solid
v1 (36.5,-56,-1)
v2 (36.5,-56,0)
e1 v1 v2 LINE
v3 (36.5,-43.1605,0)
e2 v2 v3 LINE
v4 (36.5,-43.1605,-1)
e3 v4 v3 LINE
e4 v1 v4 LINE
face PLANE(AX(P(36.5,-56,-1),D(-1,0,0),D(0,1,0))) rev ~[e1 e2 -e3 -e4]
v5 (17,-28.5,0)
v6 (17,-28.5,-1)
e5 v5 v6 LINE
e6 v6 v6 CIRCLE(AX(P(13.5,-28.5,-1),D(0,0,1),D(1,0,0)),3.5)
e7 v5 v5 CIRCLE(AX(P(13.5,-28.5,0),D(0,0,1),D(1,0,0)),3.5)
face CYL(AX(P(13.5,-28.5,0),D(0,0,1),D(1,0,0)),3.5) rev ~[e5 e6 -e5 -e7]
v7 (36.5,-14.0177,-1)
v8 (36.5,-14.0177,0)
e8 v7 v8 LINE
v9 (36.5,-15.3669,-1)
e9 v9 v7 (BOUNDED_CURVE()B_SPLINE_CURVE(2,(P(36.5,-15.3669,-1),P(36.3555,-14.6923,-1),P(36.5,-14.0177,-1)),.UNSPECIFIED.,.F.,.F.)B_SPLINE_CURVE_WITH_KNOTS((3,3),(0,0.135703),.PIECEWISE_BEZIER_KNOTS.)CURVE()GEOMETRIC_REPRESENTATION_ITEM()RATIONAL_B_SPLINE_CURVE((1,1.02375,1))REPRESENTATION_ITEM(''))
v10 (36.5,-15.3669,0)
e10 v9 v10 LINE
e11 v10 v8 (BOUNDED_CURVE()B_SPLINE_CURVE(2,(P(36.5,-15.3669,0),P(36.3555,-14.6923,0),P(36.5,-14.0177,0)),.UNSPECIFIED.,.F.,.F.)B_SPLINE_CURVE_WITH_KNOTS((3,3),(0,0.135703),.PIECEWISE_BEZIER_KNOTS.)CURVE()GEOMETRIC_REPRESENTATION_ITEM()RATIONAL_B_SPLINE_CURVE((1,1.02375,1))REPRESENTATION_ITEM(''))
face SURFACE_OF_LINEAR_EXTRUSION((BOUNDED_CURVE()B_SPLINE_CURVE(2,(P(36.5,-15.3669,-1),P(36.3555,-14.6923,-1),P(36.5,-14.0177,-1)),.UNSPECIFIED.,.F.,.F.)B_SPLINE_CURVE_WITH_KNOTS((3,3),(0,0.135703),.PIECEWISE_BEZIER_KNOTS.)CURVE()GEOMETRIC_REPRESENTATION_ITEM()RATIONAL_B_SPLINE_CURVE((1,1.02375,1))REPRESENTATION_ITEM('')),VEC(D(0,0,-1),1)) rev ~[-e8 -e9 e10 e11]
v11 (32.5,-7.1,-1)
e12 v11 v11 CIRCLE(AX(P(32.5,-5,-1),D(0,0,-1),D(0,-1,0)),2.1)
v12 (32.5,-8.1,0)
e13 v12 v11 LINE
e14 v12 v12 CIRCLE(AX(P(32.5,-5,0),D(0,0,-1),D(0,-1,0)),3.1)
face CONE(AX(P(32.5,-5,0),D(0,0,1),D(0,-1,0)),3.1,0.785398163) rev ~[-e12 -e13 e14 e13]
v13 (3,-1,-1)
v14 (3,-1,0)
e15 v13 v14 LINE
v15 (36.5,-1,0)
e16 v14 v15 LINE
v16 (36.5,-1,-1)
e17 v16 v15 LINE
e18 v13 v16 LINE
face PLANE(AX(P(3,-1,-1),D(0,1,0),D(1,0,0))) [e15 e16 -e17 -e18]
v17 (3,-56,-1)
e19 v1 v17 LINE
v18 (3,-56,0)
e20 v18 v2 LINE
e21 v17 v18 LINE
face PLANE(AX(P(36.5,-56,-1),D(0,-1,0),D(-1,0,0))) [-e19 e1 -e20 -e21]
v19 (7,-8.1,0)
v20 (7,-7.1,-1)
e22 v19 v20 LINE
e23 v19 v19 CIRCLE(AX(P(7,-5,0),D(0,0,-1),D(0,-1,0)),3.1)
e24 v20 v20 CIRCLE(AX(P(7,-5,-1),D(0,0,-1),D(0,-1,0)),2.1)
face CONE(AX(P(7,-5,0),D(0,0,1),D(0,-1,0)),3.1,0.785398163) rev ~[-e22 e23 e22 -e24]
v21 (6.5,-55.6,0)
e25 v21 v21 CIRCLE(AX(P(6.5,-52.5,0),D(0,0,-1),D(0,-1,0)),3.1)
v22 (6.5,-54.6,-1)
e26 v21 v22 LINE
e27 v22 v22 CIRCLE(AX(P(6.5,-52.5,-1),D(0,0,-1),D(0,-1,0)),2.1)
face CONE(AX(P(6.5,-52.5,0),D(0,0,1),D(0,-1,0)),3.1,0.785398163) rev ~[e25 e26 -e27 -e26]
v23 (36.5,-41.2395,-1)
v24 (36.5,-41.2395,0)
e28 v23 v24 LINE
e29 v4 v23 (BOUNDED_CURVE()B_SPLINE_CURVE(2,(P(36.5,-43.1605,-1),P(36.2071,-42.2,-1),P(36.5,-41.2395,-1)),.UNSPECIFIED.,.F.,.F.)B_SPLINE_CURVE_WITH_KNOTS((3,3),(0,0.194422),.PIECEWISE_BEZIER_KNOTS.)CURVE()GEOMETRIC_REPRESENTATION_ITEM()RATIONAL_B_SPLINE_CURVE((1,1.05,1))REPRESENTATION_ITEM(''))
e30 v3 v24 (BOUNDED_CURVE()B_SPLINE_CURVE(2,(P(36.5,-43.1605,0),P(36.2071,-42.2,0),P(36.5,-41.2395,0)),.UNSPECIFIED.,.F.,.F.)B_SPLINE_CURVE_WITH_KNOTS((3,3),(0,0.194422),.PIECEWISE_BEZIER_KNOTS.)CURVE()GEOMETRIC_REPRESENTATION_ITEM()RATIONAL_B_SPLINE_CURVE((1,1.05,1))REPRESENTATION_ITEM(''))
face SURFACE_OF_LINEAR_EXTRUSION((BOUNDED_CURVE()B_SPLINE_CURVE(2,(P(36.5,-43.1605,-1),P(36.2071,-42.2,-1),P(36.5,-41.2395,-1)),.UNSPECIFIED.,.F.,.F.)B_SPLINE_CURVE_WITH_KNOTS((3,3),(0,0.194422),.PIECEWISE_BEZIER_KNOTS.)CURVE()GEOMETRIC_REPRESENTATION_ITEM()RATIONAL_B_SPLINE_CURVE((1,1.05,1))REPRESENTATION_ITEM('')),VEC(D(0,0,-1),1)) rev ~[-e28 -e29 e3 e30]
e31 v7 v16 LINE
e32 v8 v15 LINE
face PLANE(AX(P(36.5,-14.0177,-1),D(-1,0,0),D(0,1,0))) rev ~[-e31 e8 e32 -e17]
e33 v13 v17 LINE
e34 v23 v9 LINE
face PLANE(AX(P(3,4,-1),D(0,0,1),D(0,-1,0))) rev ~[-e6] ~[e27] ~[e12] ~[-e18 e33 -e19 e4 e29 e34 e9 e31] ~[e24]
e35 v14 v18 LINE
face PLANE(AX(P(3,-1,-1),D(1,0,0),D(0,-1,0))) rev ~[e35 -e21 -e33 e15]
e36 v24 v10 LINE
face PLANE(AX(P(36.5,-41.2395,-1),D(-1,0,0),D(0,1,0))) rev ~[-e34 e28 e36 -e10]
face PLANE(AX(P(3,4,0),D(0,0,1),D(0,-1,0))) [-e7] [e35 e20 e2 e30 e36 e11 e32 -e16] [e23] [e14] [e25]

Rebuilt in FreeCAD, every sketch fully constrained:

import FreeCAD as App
import Part
import Sketcher

V = App.Vector

doc = App.newDocument("Part")
body = doc.addObject("PartDesign::Body", "Body")

# Sketch on XY plane
sketch1 = body.newObject("Sketcher::SketchObject", "Sketch")
sketch1.AttachmentSupport = (doc.getObject("XY_Plane"), [""])
sketch1.MapMode = "FlatFace"
sketch1.AttachmentOffset = App.Placement(V(0, 0, -1), App.Rotation())
sketch1.addGeometry([
    Part.BSplineCurve([V(36.5, -15.3669, 0), V(36.3555, -14.6923, 0), V(36.5, -14.0177, 0)], [3, 3], [0, 0.135703], False, 2, [1, 1.02375, 1], False),  # 0
    Part.LineSegment(V(36.5, -14.0177, 0), V(36.5, -1, 0)),  # 1
    Part.LineSegment(V(36.5, -1, 0), V(3, -1, 0)),  # 2
    Part.LineSegment(V(3, -1, 0), V(3, -56, 0)),  # 3
    Part.LineSegment(V(3, -56, 0), V(36.5, -56, 0)),  # 4
    Part.LineSegment(V(36.5, -56, 0), V(36.5, -43.1605, 0)),  # 5
    Part.BSplineCurve([V(36.5, -43.1605, 0), V(36.2071, -42.2, 0), V(36.5, -41.2395, 0)], [3, 3], [0, 0.194422], False, 2, [1, 1.05, 1], False),  # 6
    Part.LineSegment(V(36.5, -41.2395, 0), V(36.5, -15.3669, 0)),  # 7
], False)
sketch1.addConstraint([
    Sketcher.Constraint("Block", 0),
    Sketcher.Constraint("Block", 6),
    Sketcher.Constraint("Coincident", 0, 2, 1, 1),
    Sketcher.Constraint("Coincident", 1, 2, 2, 1),
    Sketcher.Constraint("Coincident", 2, 2, 3, 1),
    Sketcher.Constraint("Coincident", 3, 2, 4, 1),
    Sketcher.Constraint("Coincident", 4, 2, 5, 1),
    Sketcher.Constraint("Coincident", 5, 2, 6, 1),
    Sketcher.Constraint("Coincident", 6, 2, 7, 1),
    Sketcher.Constraint("Coincident", 7, 2, 0, 1),
    Sketcher.Constraint("Vertical", 1),
    Sketcher.Constraint("Horizontal", 2),
    Sketcher.Constraint("Vertical", 3),
    Sketcher.Constraint("Horizontal", 4),
    Sketcher.Constraint("Vertical", 5),
    Sketcher.Constraint("DistanceY", 3, 2, 3, 1, 55.0),
    Sketcher.Constraint("DistanceX", 2, 2, 2, 1, 33.5),
    Sketcher.Constraint("DistanceY", 1, 2, -1, 1, 1.0),
])
pad1 = body.newObject("PartDesign::Pad", "Pad")
pad1.Profile = sketch1
pad1.Length = 1

# Sketch on XY plane
sketch2 = body.newObject("Sketcher::SketchObject", "Sketch001")
sketch2.AttachmentSupport = (doc.getObject("XY_Plane"), [""])
sketch2.MapMode = "FlatFace"
sketch2.addGeometry(Part.Circle(V(13.5, -28.5, 0), V(0, 0, 1), 3.5), False)
sketch2.addConstraint([
    Sketcher.Constraint("Diameter", 0, 7.0),
    Sketcher.Constraint("DistanceX", -1, 1, 0, 3, 13.5),
    Sketcher.Constraint("DistanceY", 0, 3, -1, 1, 28.5),
])
pocket1 = body.newObject("PartDesign::Pocket", "Pocket")
pocket1.Profile = sketch2
pocket1.Type = "UpToFirst"

# Sketch on XY plane
sketch3 = body.newObject("Sketcher::SketchObject", "Sketch002")
sketch3.AttachmentSupport = (doc.getObject("XY_Plane"), [""])
sketch3.MapMode = "FlatFace"
sketch3.addGeometry([
    Part.Circle(V(6.5, -52.5, 0), V(0, 0, 1), 1.8),
    Part.Circle(V(7, -5, 0), V(0, 0, 1), 1.8),
    Part.Circle(V(32.5, -5, 0), V(0, 0, 1), 1.8),
], False)
sketch3.addConstraint([
    Sketcher.Constraint("Equal", 0, 1),
    Sketcher.Constraint("Equal", 1, 2),
    Sketcher.Constraint("Horizontal", 1, 3, 2, 3),
    Sketcher.Constraint("Diameter", 0, 3.6),
    Sketcher.Constraint("DistanceX", -1, 1, 1, 3, 7.0),
    Sketcher.Constraint("DistanceY", 1, 3, -1, 1, 5.0),
    Sketcher.Constraint("DistanceX", 0, 3, 2, 3, 26.0),
    Sketcher.Constraint("DistanceX", -1, 1, 0, 3, 6.5),
    Sketcher.Constraint("DistanceY", 0, 3, -1, 1, 52.5),
])
doc.recompute()
hole = body.newObject("PartDesign::Hole", "Hole")
hole.Profile = sketch3
hole.ThreadType = "None"
hole.Diameter = 3.6
hole.DepthType = "ThroughAll"
hole.HoleCutType = "Countersink"
hole.HoleCutDiameter = 6.2
hole.HoleCutCountersinkAngle = 90

doc.recompute()
